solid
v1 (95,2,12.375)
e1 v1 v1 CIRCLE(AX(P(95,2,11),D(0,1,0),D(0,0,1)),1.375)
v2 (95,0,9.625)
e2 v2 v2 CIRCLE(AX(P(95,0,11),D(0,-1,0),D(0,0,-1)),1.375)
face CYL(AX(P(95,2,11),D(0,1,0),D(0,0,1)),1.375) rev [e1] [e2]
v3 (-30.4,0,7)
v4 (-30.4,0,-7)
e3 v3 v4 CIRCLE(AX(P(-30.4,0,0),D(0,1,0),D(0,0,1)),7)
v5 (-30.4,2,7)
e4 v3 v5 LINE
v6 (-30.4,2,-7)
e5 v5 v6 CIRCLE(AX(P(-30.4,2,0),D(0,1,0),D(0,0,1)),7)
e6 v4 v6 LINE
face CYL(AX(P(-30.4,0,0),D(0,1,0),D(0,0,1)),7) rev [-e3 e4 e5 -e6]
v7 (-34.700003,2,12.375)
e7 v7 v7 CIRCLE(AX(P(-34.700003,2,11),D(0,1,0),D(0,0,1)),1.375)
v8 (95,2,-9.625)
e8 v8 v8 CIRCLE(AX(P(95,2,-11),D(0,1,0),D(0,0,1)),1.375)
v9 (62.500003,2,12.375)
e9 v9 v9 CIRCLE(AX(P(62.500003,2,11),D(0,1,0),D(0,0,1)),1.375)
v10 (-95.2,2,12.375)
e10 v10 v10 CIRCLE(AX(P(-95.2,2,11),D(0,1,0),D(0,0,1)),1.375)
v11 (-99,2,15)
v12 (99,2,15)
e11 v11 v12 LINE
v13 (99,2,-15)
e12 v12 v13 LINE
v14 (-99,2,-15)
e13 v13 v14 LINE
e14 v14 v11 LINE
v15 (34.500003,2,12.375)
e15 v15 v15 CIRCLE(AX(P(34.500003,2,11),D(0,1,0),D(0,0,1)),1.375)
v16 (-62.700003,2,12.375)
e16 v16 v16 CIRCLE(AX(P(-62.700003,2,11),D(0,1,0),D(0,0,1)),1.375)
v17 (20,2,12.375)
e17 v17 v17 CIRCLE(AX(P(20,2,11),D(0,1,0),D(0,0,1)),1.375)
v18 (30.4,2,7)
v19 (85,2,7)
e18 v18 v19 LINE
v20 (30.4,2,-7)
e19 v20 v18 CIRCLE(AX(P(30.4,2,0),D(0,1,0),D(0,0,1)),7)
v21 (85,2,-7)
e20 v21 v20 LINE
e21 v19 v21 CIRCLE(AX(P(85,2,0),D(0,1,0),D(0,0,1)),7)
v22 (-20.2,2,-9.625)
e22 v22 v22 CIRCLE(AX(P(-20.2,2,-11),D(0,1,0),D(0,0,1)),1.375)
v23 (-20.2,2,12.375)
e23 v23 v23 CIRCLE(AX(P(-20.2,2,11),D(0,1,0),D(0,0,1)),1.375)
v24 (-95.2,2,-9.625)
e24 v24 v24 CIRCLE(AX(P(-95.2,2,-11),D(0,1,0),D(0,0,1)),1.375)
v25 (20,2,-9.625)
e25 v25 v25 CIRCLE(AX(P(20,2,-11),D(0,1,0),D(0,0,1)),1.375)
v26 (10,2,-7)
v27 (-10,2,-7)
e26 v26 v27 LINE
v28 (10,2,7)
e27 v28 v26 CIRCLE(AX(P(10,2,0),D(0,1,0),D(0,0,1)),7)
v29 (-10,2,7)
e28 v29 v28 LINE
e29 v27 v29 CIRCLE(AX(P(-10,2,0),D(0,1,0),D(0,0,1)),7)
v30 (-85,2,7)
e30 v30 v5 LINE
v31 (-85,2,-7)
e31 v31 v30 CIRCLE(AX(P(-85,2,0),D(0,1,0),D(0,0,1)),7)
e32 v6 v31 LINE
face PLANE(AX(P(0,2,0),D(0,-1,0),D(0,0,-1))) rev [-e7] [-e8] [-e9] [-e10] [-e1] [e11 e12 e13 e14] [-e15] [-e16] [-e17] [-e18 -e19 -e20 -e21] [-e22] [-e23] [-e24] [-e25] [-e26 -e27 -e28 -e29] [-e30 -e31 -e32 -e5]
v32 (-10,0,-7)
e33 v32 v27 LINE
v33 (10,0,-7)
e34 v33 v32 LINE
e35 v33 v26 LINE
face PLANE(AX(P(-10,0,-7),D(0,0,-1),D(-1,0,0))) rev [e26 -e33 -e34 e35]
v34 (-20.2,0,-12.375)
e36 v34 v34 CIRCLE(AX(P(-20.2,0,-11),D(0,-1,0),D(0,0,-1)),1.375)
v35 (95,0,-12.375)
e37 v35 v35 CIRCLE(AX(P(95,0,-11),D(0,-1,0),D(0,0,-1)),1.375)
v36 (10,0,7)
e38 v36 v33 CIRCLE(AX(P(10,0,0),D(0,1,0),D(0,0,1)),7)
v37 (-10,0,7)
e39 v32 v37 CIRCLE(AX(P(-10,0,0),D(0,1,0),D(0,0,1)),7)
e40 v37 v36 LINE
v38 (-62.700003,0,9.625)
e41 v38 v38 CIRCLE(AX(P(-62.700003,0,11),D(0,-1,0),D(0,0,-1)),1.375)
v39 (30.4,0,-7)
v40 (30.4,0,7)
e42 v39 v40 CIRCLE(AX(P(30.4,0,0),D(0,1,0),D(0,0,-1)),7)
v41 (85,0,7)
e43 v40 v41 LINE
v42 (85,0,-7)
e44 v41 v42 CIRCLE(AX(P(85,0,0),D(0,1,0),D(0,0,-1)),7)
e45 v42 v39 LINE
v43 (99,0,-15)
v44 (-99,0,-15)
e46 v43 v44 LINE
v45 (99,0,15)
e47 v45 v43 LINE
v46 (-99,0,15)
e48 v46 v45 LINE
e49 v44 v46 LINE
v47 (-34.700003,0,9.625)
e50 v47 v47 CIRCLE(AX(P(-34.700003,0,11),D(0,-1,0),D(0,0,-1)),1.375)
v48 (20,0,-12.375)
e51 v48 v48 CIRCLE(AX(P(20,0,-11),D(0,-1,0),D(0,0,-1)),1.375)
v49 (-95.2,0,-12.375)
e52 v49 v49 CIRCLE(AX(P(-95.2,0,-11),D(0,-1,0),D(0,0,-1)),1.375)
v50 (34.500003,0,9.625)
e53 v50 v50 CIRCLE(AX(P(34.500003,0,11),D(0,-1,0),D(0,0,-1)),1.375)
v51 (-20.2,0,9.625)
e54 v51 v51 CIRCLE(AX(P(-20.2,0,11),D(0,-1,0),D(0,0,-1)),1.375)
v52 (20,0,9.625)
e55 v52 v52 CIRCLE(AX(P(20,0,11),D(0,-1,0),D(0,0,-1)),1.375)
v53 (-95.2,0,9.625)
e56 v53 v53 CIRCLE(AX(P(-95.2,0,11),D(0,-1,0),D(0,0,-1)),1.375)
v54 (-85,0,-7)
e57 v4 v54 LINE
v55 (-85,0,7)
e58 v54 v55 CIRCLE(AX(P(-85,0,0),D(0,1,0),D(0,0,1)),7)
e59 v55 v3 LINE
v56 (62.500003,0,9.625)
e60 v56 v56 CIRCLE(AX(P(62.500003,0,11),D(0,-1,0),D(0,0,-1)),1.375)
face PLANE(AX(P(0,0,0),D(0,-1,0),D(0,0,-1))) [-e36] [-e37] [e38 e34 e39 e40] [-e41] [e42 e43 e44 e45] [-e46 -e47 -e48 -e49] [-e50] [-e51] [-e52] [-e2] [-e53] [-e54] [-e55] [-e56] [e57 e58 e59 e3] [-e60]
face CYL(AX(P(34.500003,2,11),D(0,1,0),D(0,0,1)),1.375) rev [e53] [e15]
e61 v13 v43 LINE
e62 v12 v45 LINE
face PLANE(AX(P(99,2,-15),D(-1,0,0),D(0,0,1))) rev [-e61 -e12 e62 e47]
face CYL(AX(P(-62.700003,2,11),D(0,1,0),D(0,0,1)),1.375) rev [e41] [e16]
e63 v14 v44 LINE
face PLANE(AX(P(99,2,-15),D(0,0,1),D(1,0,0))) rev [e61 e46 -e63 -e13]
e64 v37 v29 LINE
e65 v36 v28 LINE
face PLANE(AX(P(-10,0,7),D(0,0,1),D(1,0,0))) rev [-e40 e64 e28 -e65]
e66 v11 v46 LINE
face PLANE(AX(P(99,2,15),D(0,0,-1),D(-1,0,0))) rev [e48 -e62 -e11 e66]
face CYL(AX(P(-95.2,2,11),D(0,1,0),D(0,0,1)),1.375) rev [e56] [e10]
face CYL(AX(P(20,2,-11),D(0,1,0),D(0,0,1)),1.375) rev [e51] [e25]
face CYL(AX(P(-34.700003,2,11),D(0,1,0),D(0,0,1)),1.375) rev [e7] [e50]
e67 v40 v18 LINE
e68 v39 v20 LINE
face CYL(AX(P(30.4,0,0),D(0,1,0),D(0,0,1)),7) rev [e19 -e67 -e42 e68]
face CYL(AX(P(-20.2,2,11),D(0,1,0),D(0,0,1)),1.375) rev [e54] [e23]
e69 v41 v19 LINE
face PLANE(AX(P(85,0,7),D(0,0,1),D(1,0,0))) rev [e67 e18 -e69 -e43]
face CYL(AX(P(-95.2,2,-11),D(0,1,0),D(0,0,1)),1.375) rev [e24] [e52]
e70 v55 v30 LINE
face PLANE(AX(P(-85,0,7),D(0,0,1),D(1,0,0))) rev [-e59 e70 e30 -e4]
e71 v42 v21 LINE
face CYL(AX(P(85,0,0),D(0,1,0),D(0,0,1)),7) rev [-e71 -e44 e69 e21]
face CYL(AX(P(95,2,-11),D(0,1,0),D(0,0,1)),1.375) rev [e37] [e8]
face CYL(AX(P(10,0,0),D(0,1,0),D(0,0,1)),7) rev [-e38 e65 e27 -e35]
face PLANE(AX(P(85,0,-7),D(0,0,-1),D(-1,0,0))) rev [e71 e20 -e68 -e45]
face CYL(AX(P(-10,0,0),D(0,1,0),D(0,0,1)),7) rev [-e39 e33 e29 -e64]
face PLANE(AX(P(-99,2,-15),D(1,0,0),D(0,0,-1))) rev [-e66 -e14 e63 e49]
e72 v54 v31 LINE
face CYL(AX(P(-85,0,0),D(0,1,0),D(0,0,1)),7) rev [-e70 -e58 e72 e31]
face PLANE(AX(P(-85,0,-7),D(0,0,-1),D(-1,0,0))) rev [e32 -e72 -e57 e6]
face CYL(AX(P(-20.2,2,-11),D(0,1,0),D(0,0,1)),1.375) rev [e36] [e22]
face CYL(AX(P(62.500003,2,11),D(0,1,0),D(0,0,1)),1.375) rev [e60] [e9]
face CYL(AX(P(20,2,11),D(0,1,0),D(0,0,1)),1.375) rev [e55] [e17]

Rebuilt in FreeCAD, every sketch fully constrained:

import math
import FreeCAD as App
import Part
import Sketcher

V = App.Vector
Q = App.Units.Quantity


def add_polygon(sketch, points):
    """Adds a closed chain of lines whose ends are joined by coincident constraints."""
    first, n = sketch.GeometryCount, len(points)
    for a, b in zip(points, points[1:] + points[:1]):
        sketch.addGeometry(Part.LineSegment(App.Vector(*a, 0), App.Vector(*b, 0)), False)
    for i in range(n):
        sketch.addConstraint(Sketcher.Constraint("Coincident", first + i, 2, first + (i + 1) % n, 1))

doc = App.newDocument("Part")
body = doc.addObject("PartDesign::Body", "Body")

# Sketch on XZ plane
sketch1 = doc.addObject("Sketcher::SketchObject", "Sketch")
body.addObject(sketch1)
sketch1.AttachmentSupport = (doc.XZ_Plane, [""])
sketch1.MapMode = "FlatFace"
add_polygon(sketch1, [(-99, -15), (-99, 15), (99, 15), (99, -15)])  # lines 0-3
sketch1.addConstraint([
    Sketcher.Constraint("Vertical", 0),
    Sketcher.Constraint("Horizontal", 1),
    Sketcher.Constraint("Vertical", 2),
    Sketcher.Constraint("Horizontal", 3),
    Sketcher.Constraint("Symmetric", 0, 2, 2, 2, -1, 1),
    Sketcher.Constraint("DistanceX", 1, 1, 1, 2, Q("198 mm")),
    Sketcher.Constraint("DistanceY", 0, 1, 0, 2, Q("30 mm")),
])
pad1 = doc.addObject("PartDesign::Pad", "Pad")
body.addObject(pad1)
pad1.Profile = sketch1
pad1.Length = 2
pad1.Reversed = True

# Sketch on XZ plane
sketch2 = doc.addObject("Sketcher::SketchObject", "Sketch001")
body.addObject(sketch2)
sketch2.AttachmentSupport = (doc.XZ_Plane, [""])
sketch2.MapMode = "FlatFace"
sketch2.AttachmentOffset = App.Placement(V(0, 0, -2), App.Rotation())
sketch2.addGeometry([
    Part.Circle(V(95, -11, 0), V(0, 0, 1), 1.4),  # 0
    Part.Circle(V(95, 11, 0), V(0, 0, 1), 1.4),  # 1
    Part.Circle(V(20, -11, 0), V(0, 0, 1), 1.4),  # 2
    Part.Circle(V(20, 11, 0), V(0, 0, 1), 1.4),  # 3
    Part.Circle(V(-95.2, -11, 0), V(0, 0, 1), 1.4),  # 4
    Part.Circle(V(-95.2, 11, 0), V(0, 0, 1), 1.4),  # 5
    Part.Circle(V(-20.2, -11, 0), V(0, 0, 1), 1.4),  # 6
    Part.Circle(V(-20.2, 11, 0), V(0, 0, 1), 1.4),  # 7
    Part.Circle(V(-34.7, 11, 0), V(0, 0, 1), 1.4),  # 8
    Part.Circle(V(-62.7, 11, 0), V(0, 0, 1), 1.4),  # 9
    Part.Circle(V(62.5, 11, 0), V(0, 0, 1), 1.4),  # 10
    Part.Circle(V(34.5, 11, 0), V(0, 0, 1), 1.4),  # 11
], False)
sketch2.addConstraint([
    Sketcher.Constraint("Equal", 0, 1),
    Sketcher.Constraint("Equal", 1, 2),
    Sketcher.Constraint("Equal", 2, 3),
    Sketcher.Constraint("Equal", 3, 4),
    Sketcher.Constraint("Equal", 4, 5),
    Sketcher.Constraint("Equal", 5, 6),
    Sketcher.Constraint("Equal", 6, 7),
    Sketcher.Constraint("Equal", 7, 8),
    Sketcher.Constraint("Equal", 8, 9),
    Sketcher.Constraint("Equal", 9, 10),
    Sketcher.Constraint("Equal", 10, 11),
    Sketcher.Constraint("Symmetric", 0, 3, 1, 3, -1),
    Sketcher.Constraint("Symmetric", 2, 3, 3, 3, -1),
    Sketcher.Constraint("Symmetric", 4, 3, 5, 3, -1),
    Sketcher.Constraint("Symmetric", 6, 3, 7, 3, -1),
    Sketcher.Constraint("Horizontal", 0, 3, 2, 3),
    Sketcher.Constraint("Horizontal", 2, 3, 4, 3),
    Sketcher.Constraint("Horizontal", 4, 3, 6, 3),
    Sketcher.Constraint("Horizontal", 7, 3, 8, 3),
    Sketcher.Constraint("Horizontal", 8, 3, 9, 3),
    Sketcher.Constraint("Horizontal", 9, 3, 10, 3),
    Sketcher.Constraint("Horizontal", 10, 3, 11, 3),
    Sketcher.Constraint("Diameter", 0, Q("2.75 mm")),
    Sketcher.Constraint("DistanceX", -1, 1, 0, 3, Q("95 mm")),
    Sketcher.Constraint("DistanceY", 0, 3, -1, 1, Q("11 mm")),
    Sketcher.Constraint("DistanceX", -1, 1, 2, 3, Q("20 mm")),
    Sketcher.Constraint("DistanceX", 4, 3, 6, 3, Q("75 mm")),
    Sketcher.Constraint("DistanceX", 9, 3, 8, 3, Q("28 mm")),
    Sketcher.Constraint("DistanceX", 11, 3, 10, 3, Q("28 mm")),
    Sketcher.Constraint("DistanceX", 4, 3, -1, 1, Q("95.2 mm")),
    Sketcher.Constraint("DistanceX", 8, 3, -1, 1, Q("34.700003 mm")),
    Sketcher.Constraint("DistanceX", -1, 1, 10, 3, Q("62.500003 mm")),
])
doc.recompute()
hole = doc.addObject("PartDesign::Hole", "Hole")
body.addObject(hole)
hole.Profile = sketch2
hole.ThreadType = "None"
hole.Diameter = 2.75
hole.DepthType = "Dimension"
hole.Depth = 100
hole.DrillPoint = "Flat"
hole.Reversed = True

# Sketch on XZ plane
sketch3 = doc.addObject("Sketcher::SketchObject", "Sketch002")
body.addObject(sketch3)
sketch3.AttachmentSupport = (doc.XZ_Plane, [""])
sketch3.MapMode = "FlatFace"
sketch3.AttachmentOffset = App.Placement(V(0, 0, -2), App.Rotation())
sketch3.addGeometry([
    Part.LineSegment(V(10, -7, 0), V(-10, -7, 0)),  # 0
    Part.ArcOfCircle(Part.Circle(V(-10, 0, 0), V(0, 0, 1), 7), math.radians(90), math.radians(270)),  # 1
    Part.LineSegment(V(-10, 7, 0), V(10, 7, 0)),  # 2
    Part.ArcOfCircle(Part.Circle(V(10, 0, 0), V(0, 0, 1), 7), math.radians(-90), math.radians(90)),  # 3
    Part.LineSegment(V(-30, -7, 0), V(-85, -7, 0)),  # 4
    Part.ArcOfCircle(Part.Circle(V(-85, 0, 0), V(0, 0, 1), 7), math.radians(90), math.radians(270)),  # 5
    Part.LineSegment(V(-85, 7, 0), V(-30, 7, 0)),  # 6
    Part.ArcOfCircle(Part.Circle(V(-30, 0, 0), V(0, 0, 1), 7), math.radians(-90), math.radians(90)),  # 7
    Part.LineSegment(V(85, -7, 0), V(30, -7, 0)),  # 8
    Part.ArcOfCircle(Part.Circle(V(30, 0, 0), V(0, 0, 1), 7), math.radians(90), math.radians(270)),  # 9
    Part.LineSegment(V(30, 7, 0), V(85, 7, 0)),  # 10
    Part.ArcOfCircle(Part.Circle(V(85, 0, 0), V(0, 0, 1), 7), math.radians(-90), math.radians(90)),  # 11
], False)
sketch3.addConstraint([
    Sketcher.Constraint("Tangent", 0, 2, 1, 2),
    Sketcher.Constraint("Tangent", 1, 1, 2, 1),
    Sketcher.Constraint("Tangent", 2, 2, 3, 2),
    Sketcher.Constraint("Tangent", 3, 1, 0, 1),
    Sketcher.Constraint("Tangent", 4, 2, 5, 2),
    Sketcher.Constraint("Tangent", 5, 1, 6, 1),
    Sketcher.Constraint("Tangent", 6, 2, 7, 2),
    Sketcher.Constraint("Tangent", 7, 1, 4, 1),
    Sketcher.Constraint("Tangent", 8, 2, 9, 2),
    Sketcher.Constraint("Tangent", 9, 1, 10, 1),
    Sketcher.Constraint("Tangent", 10, 2, 11, 2),
    Sketcher.Constraint("Tangent", 11, 1, 8, 1),
    Sketcher.Constraint("Horizontal", 0),
    Sketcher.Constraint("Horizontal", 2),
    Sketcher.Constraint("Horizontal", 4),
    Sketcher.Constraint("Horizontal", 6),
    Sketcher.Constraint("Horizontal", 8),
    Sketcher.Constraint("Horizontal", 10),
    Sketcher.Constraint("Equal", 3, 5),
    Sketcher.Constraint("Equal", 7, 9),
    Sketcher.Constraint("Symmetric", 1, 3, 3, 3, -1, 1),
    Sketcher.Constraint("Symmetric", 7, 3, 9, 3, -1, 1),
    Sketcher.Constraint("Symmetric", 5, 3, 11, 3, -2),
    Sketcher.Constraint("Radius", 1, Q("7 mm")),
    Sketcher.Constraint("DistanceX", 0, 2, 0, 1, Q("20 mm")),
    Sketcher.Constraint("DistanceX", 4, 2, 4, 1, Q("54.6 mm")),
    Sketcher.Constraint("DistanceX", 5, 3, -1, 1, Q("85 mm")),
])
pocket1 = doc.addObject("PartDesign::Pocket", "Pocket")
body.addObject(pocket1)
pocket1.Profile = sketch3
pocket1.Type = "ThroughAll"
pocket1.Midplane = True

doc.recompute()
